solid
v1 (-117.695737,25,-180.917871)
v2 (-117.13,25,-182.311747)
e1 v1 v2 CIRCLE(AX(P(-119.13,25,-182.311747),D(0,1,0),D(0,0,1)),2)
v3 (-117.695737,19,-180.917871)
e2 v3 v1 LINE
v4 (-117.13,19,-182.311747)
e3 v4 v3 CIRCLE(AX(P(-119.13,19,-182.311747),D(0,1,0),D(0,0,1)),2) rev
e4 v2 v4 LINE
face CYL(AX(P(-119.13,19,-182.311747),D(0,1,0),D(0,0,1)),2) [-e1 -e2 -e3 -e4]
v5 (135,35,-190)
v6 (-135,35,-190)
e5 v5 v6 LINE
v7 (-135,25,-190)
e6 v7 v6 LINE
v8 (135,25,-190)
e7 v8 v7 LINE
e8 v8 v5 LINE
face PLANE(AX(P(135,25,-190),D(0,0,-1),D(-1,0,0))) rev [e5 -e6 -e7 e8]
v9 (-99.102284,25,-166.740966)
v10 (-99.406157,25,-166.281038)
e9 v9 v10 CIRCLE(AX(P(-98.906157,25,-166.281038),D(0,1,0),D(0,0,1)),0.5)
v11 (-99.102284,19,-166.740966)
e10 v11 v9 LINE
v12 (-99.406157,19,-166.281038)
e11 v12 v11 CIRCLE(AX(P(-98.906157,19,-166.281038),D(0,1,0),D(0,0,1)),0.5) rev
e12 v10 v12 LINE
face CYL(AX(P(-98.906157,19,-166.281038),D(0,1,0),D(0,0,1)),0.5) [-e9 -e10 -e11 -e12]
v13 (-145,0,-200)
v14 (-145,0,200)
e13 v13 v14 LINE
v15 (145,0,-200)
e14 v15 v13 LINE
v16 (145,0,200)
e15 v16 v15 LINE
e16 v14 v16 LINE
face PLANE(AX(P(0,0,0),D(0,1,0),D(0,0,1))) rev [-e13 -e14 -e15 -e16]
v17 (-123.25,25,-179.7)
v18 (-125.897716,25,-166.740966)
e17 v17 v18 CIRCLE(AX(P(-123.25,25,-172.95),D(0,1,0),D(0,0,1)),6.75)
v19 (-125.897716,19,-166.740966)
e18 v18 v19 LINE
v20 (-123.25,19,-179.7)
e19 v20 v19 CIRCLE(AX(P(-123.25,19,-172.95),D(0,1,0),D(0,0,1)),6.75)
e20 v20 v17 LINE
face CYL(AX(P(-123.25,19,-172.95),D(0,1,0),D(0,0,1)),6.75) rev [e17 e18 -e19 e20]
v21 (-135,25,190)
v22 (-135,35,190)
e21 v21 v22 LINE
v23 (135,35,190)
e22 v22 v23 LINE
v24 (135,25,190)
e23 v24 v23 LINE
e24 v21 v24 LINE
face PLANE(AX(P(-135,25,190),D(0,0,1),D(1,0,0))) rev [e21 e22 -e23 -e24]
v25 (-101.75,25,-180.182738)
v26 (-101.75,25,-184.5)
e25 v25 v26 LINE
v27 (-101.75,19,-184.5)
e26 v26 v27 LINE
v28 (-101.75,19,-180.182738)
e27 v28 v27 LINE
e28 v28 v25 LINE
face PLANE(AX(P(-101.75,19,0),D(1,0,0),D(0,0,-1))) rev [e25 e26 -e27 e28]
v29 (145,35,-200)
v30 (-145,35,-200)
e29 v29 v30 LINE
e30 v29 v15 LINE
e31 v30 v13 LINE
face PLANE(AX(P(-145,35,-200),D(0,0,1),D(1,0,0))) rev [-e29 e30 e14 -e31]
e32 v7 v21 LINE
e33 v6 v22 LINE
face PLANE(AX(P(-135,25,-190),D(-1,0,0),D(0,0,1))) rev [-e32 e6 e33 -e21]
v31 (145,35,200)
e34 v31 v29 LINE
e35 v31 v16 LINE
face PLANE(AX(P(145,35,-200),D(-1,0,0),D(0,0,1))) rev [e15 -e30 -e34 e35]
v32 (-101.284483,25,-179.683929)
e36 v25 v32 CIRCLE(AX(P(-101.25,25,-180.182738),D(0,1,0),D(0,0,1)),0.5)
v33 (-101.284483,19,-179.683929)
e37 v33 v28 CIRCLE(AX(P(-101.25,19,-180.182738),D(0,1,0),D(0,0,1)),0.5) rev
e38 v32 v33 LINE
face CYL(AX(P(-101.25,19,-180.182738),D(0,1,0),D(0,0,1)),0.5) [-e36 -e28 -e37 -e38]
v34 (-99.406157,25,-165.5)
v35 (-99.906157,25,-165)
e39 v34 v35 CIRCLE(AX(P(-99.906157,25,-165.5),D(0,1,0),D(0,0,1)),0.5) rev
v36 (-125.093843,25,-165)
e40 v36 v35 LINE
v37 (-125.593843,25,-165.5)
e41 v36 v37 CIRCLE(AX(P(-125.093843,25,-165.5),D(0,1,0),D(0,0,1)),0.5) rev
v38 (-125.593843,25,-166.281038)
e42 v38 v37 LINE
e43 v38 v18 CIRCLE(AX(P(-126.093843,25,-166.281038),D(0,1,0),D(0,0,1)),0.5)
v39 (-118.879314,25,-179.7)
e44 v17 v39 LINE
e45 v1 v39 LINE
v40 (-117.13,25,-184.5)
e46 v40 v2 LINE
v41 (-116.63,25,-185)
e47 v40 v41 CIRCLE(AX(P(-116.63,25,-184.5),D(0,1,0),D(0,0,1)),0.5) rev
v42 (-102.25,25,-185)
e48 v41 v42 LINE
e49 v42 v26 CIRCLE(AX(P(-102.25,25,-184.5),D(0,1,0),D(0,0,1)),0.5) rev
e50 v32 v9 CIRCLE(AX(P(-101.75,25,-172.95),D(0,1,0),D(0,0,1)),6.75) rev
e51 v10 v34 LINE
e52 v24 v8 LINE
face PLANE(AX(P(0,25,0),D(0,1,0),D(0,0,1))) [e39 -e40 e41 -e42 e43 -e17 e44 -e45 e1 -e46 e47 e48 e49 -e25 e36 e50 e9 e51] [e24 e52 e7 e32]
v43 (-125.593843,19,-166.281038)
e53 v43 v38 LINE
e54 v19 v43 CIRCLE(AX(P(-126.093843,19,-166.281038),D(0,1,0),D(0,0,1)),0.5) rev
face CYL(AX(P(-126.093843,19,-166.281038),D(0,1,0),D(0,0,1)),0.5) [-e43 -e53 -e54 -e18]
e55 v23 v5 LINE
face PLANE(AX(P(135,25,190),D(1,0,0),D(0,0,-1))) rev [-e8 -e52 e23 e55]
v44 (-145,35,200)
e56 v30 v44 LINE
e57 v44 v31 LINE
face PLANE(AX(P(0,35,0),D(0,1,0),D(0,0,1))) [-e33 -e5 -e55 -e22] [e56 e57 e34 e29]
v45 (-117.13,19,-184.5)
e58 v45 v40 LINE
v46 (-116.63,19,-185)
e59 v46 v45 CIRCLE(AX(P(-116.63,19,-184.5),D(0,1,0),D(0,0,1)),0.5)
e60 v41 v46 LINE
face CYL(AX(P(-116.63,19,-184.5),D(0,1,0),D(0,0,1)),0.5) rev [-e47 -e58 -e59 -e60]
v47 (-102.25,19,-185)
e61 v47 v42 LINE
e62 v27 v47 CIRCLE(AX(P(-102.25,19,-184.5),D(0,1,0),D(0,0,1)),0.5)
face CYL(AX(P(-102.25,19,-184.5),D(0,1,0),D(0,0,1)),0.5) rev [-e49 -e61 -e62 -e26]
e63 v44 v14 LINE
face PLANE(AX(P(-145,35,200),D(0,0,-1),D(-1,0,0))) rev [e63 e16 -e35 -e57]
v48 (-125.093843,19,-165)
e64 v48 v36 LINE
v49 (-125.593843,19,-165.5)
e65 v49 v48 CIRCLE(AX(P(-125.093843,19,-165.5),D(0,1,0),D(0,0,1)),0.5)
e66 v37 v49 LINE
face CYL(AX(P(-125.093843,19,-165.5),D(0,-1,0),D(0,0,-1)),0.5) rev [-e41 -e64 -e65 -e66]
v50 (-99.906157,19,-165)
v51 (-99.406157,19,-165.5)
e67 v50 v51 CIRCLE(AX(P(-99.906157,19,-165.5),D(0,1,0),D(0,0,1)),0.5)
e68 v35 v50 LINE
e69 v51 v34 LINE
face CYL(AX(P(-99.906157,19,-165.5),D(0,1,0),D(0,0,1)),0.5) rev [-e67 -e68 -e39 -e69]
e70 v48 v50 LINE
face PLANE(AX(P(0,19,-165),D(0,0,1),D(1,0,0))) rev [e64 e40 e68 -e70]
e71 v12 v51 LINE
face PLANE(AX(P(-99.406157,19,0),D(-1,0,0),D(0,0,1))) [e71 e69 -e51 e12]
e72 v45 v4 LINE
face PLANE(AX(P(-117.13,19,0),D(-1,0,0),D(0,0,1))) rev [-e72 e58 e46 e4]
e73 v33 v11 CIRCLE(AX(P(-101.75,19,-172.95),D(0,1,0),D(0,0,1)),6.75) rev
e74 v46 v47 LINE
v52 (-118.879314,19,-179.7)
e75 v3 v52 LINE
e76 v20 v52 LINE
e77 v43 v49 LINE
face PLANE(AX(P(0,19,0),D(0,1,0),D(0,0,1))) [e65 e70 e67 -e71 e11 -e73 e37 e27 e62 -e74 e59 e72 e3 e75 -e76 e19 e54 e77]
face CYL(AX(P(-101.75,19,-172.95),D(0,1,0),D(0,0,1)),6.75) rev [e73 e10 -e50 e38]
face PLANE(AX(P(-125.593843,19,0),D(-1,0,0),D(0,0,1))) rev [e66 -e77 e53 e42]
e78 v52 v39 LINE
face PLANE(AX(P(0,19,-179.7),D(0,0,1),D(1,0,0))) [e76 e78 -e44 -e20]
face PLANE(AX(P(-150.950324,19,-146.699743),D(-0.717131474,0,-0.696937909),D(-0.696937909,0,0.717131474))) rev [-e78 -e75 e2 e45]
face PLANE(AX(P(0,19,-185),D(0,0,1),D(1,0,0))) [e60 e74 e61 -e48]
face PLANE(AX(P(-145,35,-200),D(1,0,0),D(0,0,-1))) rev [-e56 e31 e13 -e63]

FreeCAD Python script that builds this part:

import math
import FreeCAD as App
import Part
import Sketcher
Q = App.Units.Quantity


def edges_at(feature, points):
    """Names of the edges that pass closest to the given points."""
    edges = feature.Shape.Edges
    near = lambda p: min(range(len(edges)), key=lambda i: edges[i].distToShape(Part.Vertex(*p))[0])
    return sorted({f"Edge{near(p) + 1}" for p in points})

doc = App.newDocument("Part")
params = doc.addObject("Spreadsheet::Sheet", "Params")
for row, (alias, value) in enumerate([
    ("sketch1_width", "290 mm"),
    ("sketch1_height", "400 mm"),
    ("pad1_length", "35 mm"),
    ("sketch2_width", "270 mm"),
    ("sketch2_height", "380 mm"),
    ("pocket1_length", "10 mm"),
    ("sketch3_radius", "6.75 mm"),
    ("sketch3_height", "3.5 mm"),
    ("sketch3_height2", "5.3 mm"),
    ("sketch3_width", "15.38 mm"),
    ("sketch3_height3", "1.62 mm"),
    ("pocket2_length", "6 mm"),
    ("fillet_radius", "2 mm"),
    ("fillet2_radius", "0.5 mm"),
    ("fillet3_radius", "0.5 mm"),
    ("fillet4_radius", "0.5 mm"),
    ("fillet5_radius", "0.5 mm"),
    ("fillet6_radius", "0.5 mm"),
    ("fillet7_radius", "0.5 mm"),
], start=1):
    params.set(f"A{row}", alias)
    params.set(f"B{row}", "=" + value)
    params.setAlias(f"B{row}", alias)

body = doc.addObject("PartDesign::Body", "Body")

# Sketch on XZ plane
sketch1 = body.newObject("Sketcher::SketchObject", "Sketch")
sketch1.AttachmentSupport = (doc.getObject("XZ_Plane"), [""])
sketch1.MapMode = "FlatFace"
sketch1.addGeometry([
    Part.LineSegment(App.Vector(-145, -200, 0), App.Vector(-145, 200, 0)),
    Part.LineSegment(App.Vector(-145, 200, 0), App.Vector(145, 200, 0)),
    Part.LineSegment(App.Vector(145, 200, 0), App.Vector(145, -200, 0)),
    Part.LineSegment(App.Vector(145, -200, 0), App.Vector(-145, -200, 0)),
], False)
sketch1.addConstraint([
    Sketcher.Constraint("Coincident", 0, 2, 1, 1),
    Sketcher.Constraint("Coincident", 1, 2, 2, 1),
    Sketcher.Constraint("Coincident", 2, 2, 3, 1),
    Sketcher.Constraint("Coincident", 3, 2, 0, 1),
    Sketcher.Constraint("Vertical", 0),
    Sketcher.Constraint("Horizontal", 1),
    Sketcher.Constraint("Vertical", 2),
    Sketcher.Constraint("Horizontal", 3),
    Sketcher.Constraint("Symmetric", 0, 2, 2, 2, -1, 1),
    Sketcher.Constraint("DistanceX", 1, 1, 1, 2, Q("290 mm")),
    Sketcher.Constraint("DistanceY", 0, 1, 0, 2, Q("400 mm")),
])
sketch1.setExpression("Constraints[9]", "Params.sketch1_width")
sketch1.setExpression("Constraints[10]", "Params.sketch1_height")
pad1 = body.newObject("PartDesign::Pad", "Pad")
pad1.Profile = sketch1
pad1.setExpression("Length", "Params.pad1_length")
pad1.Reversed = True

# Sketch on XZ plane
sketch2 = body.newObject("Sketcher::SketchObject", "Sketch001")
sketch2.AttachmentSupport = (doc.getObject("XZ_Plane"), [""])
sketch2.MapMode = "FlatFace"
sketch2.AttachmentOffset = App.Placement(App.Vector(0, 0, -35), App.Rotation())
sketch2.addGeometry([
    Part.LineSegment(App.Vector(-135, -190, 0), App.Vector(-135, 190, 0)),
    Part.LineSegment(App.Vector(-135, 190, 0), App.Vector(135, 190, 0)),
    Part.LineSegment(App.Vector(135, 190, 0), App.Vector(135, -190, 0)),
    Part.LineSegment(App.Vector(135, -190, 0), App.Vector(-135, -190, 0)),
], False)
sketch2.addConstraint([
    Sketcher.Constraint("Coincident", 0, 2, 1, 1),
    Sketcher.Constraint("Coincident", 1, 2, 2, 1),
    Sketcher.Constraint("Coincident", 2, 2, 3, 1),
    Sketcher.Constraint("Coincident", 3, 2, 0, 1),
    Sketcher.Constraint("Vertical", 0),
    Sketcher.Constraint("Horizontal", 1),
    Sketcher.Constraint("Vertical", 2),
    Sketcher.Constraint("Horizontal", 3),
    Sketcher.Constraint("Symmetric", 0, 2, 2, 2, -1, 1),
    Sketcher.Constraint("DistanceX", 1, 1, 1, 2, Q("270 mm")),
    Sketcher.Constraint("DistanceY", 0, 1, 0, 2, Q("380 mm")),
])
sketch2.setExpression("Constraints[9]", "Params.sketch2_width")
sketch2.setExpression("Constraints[10]", "Params.sketch2_height")
pocket1 = body.newObject("PartDesign::Pocket", "Pocket")
pocket1.Profile = sketch2
pocket1.setExpression("Length", "Params.pocket1_length")
pocket1.Reversed = True

# Sketch on XZ plane
sketch3 = body.newObject("Sketcher::SketchObject", "Sketch002")
sketch3.AttachmentSupport = (doc.getObject("XZ_Plane"), [""])
sketch3.MapMode = "FlatFace"
sketch3.AttachmentOffset = App.Placement(App.Vector(0, 0, -25), App.Rotation())
sketch3.addGeometry([
    Part.LineSegment(App.Vector(-101.75, -185, 0), App.Vector(-117.13, -185, 0)),  # 0
    Part.LineSegment(App.Vector(-117.13, -185, 0), App.Vector(-117.13, -181.5, 0)),  # 1
    Part.LineSegment(App.Vector(-117.13, -181.5, 0), App.Vector(-118.879314, -179.7, 0)),  # 2
    Part.LineSegment(App.Vector(-118.879314, -179.7, 0), App.Vector(-123.25, -179.7, 0)),  # 3
    Part.ArcOfCircle(Part.Circle(App.Vector(-123.25, -172.95, 0), App.Vector(0, 0, 1), 6.75), math.radians(110.318349), math.radians(270)),  # 4
    Part.LineSegment(App.Vector(-125.593843, -166.62, 0), App.Vector(-125.593843, -165, 0)),  # 5
    Part.LineSegment(App.Vector(-125.593843, -165, 0), App.Vector(-99.406157, -165, 0)),  # 6
    Part.LineSegment(App.Vector(-99.406157, -165, 0), App.Vector(-99.406157, -166.62, 0)),  # 7
    Part.ArcOfCircle(Part.Circle(App.Vector(-101.75, -172.95, 0), App.Vector(0, 0, 1), 6.75), math.radians(-90), math.radians(69.681651)),  # 8
    Part.LineSegment(App.Vector(-101.75, -179.7, 0), App.Vector(-101.75, -185, 0)),  # 9
], False)
sketch3.addConstraint([
    Sketcher.Constraint("Coincident", 0, 2, 1, 1),
    Sketcher.Constraint("Coincident", 1, 2, 2, 1),
    Sketcher.Constraint("Coincident", 2, 2, 3, 1),
    Sketcher.Constraint("Tangent", 3, 2, 4, 2),
    Sketcher.Constraint("Coincident", 4, 1, 5, 1),
    Sketcher.Constraint("Coincident", 5, 2, 6, 1),
    Sketcher.Constraint("Coincident", 6, 2, 7, 1),
    Sketcher.Constraint("Coincident", 7, 2, 8, 2),
    Sketcher.Constraint("Coincident", 8, 1, 9, 1),
    Sketcher.Constraint("Coincident", 9, 2, 0, 1),
    Sketcher.Constraint("Horizontal", 0),
    Sketcher.Constraint("Vertical", 1),
    Sketcher.Constraint("Horizontal", 3),
    Sketcher.Constraint("Vertical", 5),
    Sketcher.Constraint("Horizontal", 6),
    Sketcher.Constraint("Vertical", 7),
    Sketcher.Constraint("Vertical", 9),
    Sketcher.Constraint("Equal", 4, 8),
    Sketcher.Constraint("Horizontal", 4, 3, 8, 3),
    Sketcher.Constraint("Horizontal", 4, 1, 7, 2),
    Sketcher.Constraint("Radius", 4, Q("6.75 mm")),
    Sketcher.Constraint("DistanceY", 1, 1, 1, 2, Q("3.5 mm")),
    Sketcher.Constraint("DistanceY", 9, 2, 9, 1, Q("5.3 mm")),
    Sketcher.Constraint("DistanceY", 0, 2, -1, 1, Q("185 mm")),
    Sketcher.Constraint("DistanceY", 5, 2, -1, 1, Q("165 mm")),
    Sketcher.Constraint("DistanceX", 0, 2, 0, 1, Q("15.38 mm")),
    Sketcher.Constraint("DistanceY", 5, 1, 5, 2, Q("1.62 mm")),
    Sketcher.Constraint("DistanceX", 4, 3, 8, 3, Q("21.5 mm")),
    Sketcher.Constraint("Distance", 2, Q("2.51 mm")),
    Sketcher.Constraint("DistanceX", 4, 3, -1, 1, Q("123.25 mm")),
    Sketcher.Constraint("DistanceX", 0, 2, -1, 1, Q("117.13 mm")),
])
sketch3.setExpression("Constraints[20]", "Params.sketch3_radius")
sketch3.setExpression("Constraints[21]", "Params.sketch3_height")
sketch3.setExpression("Constraints[22]", "Params.sketch3_height2")
sketch3.setExpression("Constraints[25]", "Params.sketch3_width")
sketch3.setExpression("Constraints[26]", "Params.sketch3_height3")
pocket2 = body.newObject("PartDesign::Pocket", "Pocket001")
pocket2.Profile = sketch3
pocket2.setExpression("Length", "Params.pocket2_length")
pocket2.Reversed = True
doc.recompute()

fillet = body.newObject("PartDesign::Fillet", "Fillet")
fillet.Base = (pocket2, edges_at(pocket2, [(-117.13, 22, -181.5)]))
fillet.setExpression("Radius", "Params.fillet_radius")
doc.recompute()

fillet2 = body.newObject("PartDesign::Fillet", "Fillet001")
fillet2.Base = (fillet, edges_at(fillet, [(-125.594, 22, -166.62)]))
fillet2.setExpression("Radius", "Params.fillet2_radius")
doc.recompute()

fillet3 = body.newObject("PartDesign::Fillet", "Fillet002")
fillet3.Base = (fillet2, edges_at(fillet2, [(-99.406, 22, -166.62)]))
fillet3.setExpression("Radius", "Params.fillet3_radius")
doc.recompute()

fillet4 = body.newObject("PartDesign::Fillet", "Fillet003")
fillet4.Base = (fillet3, edges_at(fillet3, [(-101.75, 22, -179.7)]))
fillet4.setExpression("Radius", "Params.fillet4_radius")
doc.recompute()

fillet5 = body.newObject("PartDesign::Fillet", "Fillet004")
fillet5.Base = (fillet4, edges_at(fillet4, [(-101.75, 22, -185)]))
fillet5.setExpression("Radius", "Params.fillet5_radius")
doc.recompute()

fillet6 = body.newObject("PartDesign::Fillet", "Fillet005")
fillet6.Base = (fillet5, edges_at(fillet5, [(-117.13, 22, -185)]))
fillet6.setExpression("Radius", "Params.fillet6_radius")
doc.recompute()

fillet7 = body.newObject("PartDesign::Fillet", "Fillet006")
fillet7.Base = (fillet6, edges_at(fillet6, [(-99.406, 22, -165), (-125.594, 22, -165)]))
fillet7.setExpression("Radius", "Params.fillet7_radius")

doc.recompute()
